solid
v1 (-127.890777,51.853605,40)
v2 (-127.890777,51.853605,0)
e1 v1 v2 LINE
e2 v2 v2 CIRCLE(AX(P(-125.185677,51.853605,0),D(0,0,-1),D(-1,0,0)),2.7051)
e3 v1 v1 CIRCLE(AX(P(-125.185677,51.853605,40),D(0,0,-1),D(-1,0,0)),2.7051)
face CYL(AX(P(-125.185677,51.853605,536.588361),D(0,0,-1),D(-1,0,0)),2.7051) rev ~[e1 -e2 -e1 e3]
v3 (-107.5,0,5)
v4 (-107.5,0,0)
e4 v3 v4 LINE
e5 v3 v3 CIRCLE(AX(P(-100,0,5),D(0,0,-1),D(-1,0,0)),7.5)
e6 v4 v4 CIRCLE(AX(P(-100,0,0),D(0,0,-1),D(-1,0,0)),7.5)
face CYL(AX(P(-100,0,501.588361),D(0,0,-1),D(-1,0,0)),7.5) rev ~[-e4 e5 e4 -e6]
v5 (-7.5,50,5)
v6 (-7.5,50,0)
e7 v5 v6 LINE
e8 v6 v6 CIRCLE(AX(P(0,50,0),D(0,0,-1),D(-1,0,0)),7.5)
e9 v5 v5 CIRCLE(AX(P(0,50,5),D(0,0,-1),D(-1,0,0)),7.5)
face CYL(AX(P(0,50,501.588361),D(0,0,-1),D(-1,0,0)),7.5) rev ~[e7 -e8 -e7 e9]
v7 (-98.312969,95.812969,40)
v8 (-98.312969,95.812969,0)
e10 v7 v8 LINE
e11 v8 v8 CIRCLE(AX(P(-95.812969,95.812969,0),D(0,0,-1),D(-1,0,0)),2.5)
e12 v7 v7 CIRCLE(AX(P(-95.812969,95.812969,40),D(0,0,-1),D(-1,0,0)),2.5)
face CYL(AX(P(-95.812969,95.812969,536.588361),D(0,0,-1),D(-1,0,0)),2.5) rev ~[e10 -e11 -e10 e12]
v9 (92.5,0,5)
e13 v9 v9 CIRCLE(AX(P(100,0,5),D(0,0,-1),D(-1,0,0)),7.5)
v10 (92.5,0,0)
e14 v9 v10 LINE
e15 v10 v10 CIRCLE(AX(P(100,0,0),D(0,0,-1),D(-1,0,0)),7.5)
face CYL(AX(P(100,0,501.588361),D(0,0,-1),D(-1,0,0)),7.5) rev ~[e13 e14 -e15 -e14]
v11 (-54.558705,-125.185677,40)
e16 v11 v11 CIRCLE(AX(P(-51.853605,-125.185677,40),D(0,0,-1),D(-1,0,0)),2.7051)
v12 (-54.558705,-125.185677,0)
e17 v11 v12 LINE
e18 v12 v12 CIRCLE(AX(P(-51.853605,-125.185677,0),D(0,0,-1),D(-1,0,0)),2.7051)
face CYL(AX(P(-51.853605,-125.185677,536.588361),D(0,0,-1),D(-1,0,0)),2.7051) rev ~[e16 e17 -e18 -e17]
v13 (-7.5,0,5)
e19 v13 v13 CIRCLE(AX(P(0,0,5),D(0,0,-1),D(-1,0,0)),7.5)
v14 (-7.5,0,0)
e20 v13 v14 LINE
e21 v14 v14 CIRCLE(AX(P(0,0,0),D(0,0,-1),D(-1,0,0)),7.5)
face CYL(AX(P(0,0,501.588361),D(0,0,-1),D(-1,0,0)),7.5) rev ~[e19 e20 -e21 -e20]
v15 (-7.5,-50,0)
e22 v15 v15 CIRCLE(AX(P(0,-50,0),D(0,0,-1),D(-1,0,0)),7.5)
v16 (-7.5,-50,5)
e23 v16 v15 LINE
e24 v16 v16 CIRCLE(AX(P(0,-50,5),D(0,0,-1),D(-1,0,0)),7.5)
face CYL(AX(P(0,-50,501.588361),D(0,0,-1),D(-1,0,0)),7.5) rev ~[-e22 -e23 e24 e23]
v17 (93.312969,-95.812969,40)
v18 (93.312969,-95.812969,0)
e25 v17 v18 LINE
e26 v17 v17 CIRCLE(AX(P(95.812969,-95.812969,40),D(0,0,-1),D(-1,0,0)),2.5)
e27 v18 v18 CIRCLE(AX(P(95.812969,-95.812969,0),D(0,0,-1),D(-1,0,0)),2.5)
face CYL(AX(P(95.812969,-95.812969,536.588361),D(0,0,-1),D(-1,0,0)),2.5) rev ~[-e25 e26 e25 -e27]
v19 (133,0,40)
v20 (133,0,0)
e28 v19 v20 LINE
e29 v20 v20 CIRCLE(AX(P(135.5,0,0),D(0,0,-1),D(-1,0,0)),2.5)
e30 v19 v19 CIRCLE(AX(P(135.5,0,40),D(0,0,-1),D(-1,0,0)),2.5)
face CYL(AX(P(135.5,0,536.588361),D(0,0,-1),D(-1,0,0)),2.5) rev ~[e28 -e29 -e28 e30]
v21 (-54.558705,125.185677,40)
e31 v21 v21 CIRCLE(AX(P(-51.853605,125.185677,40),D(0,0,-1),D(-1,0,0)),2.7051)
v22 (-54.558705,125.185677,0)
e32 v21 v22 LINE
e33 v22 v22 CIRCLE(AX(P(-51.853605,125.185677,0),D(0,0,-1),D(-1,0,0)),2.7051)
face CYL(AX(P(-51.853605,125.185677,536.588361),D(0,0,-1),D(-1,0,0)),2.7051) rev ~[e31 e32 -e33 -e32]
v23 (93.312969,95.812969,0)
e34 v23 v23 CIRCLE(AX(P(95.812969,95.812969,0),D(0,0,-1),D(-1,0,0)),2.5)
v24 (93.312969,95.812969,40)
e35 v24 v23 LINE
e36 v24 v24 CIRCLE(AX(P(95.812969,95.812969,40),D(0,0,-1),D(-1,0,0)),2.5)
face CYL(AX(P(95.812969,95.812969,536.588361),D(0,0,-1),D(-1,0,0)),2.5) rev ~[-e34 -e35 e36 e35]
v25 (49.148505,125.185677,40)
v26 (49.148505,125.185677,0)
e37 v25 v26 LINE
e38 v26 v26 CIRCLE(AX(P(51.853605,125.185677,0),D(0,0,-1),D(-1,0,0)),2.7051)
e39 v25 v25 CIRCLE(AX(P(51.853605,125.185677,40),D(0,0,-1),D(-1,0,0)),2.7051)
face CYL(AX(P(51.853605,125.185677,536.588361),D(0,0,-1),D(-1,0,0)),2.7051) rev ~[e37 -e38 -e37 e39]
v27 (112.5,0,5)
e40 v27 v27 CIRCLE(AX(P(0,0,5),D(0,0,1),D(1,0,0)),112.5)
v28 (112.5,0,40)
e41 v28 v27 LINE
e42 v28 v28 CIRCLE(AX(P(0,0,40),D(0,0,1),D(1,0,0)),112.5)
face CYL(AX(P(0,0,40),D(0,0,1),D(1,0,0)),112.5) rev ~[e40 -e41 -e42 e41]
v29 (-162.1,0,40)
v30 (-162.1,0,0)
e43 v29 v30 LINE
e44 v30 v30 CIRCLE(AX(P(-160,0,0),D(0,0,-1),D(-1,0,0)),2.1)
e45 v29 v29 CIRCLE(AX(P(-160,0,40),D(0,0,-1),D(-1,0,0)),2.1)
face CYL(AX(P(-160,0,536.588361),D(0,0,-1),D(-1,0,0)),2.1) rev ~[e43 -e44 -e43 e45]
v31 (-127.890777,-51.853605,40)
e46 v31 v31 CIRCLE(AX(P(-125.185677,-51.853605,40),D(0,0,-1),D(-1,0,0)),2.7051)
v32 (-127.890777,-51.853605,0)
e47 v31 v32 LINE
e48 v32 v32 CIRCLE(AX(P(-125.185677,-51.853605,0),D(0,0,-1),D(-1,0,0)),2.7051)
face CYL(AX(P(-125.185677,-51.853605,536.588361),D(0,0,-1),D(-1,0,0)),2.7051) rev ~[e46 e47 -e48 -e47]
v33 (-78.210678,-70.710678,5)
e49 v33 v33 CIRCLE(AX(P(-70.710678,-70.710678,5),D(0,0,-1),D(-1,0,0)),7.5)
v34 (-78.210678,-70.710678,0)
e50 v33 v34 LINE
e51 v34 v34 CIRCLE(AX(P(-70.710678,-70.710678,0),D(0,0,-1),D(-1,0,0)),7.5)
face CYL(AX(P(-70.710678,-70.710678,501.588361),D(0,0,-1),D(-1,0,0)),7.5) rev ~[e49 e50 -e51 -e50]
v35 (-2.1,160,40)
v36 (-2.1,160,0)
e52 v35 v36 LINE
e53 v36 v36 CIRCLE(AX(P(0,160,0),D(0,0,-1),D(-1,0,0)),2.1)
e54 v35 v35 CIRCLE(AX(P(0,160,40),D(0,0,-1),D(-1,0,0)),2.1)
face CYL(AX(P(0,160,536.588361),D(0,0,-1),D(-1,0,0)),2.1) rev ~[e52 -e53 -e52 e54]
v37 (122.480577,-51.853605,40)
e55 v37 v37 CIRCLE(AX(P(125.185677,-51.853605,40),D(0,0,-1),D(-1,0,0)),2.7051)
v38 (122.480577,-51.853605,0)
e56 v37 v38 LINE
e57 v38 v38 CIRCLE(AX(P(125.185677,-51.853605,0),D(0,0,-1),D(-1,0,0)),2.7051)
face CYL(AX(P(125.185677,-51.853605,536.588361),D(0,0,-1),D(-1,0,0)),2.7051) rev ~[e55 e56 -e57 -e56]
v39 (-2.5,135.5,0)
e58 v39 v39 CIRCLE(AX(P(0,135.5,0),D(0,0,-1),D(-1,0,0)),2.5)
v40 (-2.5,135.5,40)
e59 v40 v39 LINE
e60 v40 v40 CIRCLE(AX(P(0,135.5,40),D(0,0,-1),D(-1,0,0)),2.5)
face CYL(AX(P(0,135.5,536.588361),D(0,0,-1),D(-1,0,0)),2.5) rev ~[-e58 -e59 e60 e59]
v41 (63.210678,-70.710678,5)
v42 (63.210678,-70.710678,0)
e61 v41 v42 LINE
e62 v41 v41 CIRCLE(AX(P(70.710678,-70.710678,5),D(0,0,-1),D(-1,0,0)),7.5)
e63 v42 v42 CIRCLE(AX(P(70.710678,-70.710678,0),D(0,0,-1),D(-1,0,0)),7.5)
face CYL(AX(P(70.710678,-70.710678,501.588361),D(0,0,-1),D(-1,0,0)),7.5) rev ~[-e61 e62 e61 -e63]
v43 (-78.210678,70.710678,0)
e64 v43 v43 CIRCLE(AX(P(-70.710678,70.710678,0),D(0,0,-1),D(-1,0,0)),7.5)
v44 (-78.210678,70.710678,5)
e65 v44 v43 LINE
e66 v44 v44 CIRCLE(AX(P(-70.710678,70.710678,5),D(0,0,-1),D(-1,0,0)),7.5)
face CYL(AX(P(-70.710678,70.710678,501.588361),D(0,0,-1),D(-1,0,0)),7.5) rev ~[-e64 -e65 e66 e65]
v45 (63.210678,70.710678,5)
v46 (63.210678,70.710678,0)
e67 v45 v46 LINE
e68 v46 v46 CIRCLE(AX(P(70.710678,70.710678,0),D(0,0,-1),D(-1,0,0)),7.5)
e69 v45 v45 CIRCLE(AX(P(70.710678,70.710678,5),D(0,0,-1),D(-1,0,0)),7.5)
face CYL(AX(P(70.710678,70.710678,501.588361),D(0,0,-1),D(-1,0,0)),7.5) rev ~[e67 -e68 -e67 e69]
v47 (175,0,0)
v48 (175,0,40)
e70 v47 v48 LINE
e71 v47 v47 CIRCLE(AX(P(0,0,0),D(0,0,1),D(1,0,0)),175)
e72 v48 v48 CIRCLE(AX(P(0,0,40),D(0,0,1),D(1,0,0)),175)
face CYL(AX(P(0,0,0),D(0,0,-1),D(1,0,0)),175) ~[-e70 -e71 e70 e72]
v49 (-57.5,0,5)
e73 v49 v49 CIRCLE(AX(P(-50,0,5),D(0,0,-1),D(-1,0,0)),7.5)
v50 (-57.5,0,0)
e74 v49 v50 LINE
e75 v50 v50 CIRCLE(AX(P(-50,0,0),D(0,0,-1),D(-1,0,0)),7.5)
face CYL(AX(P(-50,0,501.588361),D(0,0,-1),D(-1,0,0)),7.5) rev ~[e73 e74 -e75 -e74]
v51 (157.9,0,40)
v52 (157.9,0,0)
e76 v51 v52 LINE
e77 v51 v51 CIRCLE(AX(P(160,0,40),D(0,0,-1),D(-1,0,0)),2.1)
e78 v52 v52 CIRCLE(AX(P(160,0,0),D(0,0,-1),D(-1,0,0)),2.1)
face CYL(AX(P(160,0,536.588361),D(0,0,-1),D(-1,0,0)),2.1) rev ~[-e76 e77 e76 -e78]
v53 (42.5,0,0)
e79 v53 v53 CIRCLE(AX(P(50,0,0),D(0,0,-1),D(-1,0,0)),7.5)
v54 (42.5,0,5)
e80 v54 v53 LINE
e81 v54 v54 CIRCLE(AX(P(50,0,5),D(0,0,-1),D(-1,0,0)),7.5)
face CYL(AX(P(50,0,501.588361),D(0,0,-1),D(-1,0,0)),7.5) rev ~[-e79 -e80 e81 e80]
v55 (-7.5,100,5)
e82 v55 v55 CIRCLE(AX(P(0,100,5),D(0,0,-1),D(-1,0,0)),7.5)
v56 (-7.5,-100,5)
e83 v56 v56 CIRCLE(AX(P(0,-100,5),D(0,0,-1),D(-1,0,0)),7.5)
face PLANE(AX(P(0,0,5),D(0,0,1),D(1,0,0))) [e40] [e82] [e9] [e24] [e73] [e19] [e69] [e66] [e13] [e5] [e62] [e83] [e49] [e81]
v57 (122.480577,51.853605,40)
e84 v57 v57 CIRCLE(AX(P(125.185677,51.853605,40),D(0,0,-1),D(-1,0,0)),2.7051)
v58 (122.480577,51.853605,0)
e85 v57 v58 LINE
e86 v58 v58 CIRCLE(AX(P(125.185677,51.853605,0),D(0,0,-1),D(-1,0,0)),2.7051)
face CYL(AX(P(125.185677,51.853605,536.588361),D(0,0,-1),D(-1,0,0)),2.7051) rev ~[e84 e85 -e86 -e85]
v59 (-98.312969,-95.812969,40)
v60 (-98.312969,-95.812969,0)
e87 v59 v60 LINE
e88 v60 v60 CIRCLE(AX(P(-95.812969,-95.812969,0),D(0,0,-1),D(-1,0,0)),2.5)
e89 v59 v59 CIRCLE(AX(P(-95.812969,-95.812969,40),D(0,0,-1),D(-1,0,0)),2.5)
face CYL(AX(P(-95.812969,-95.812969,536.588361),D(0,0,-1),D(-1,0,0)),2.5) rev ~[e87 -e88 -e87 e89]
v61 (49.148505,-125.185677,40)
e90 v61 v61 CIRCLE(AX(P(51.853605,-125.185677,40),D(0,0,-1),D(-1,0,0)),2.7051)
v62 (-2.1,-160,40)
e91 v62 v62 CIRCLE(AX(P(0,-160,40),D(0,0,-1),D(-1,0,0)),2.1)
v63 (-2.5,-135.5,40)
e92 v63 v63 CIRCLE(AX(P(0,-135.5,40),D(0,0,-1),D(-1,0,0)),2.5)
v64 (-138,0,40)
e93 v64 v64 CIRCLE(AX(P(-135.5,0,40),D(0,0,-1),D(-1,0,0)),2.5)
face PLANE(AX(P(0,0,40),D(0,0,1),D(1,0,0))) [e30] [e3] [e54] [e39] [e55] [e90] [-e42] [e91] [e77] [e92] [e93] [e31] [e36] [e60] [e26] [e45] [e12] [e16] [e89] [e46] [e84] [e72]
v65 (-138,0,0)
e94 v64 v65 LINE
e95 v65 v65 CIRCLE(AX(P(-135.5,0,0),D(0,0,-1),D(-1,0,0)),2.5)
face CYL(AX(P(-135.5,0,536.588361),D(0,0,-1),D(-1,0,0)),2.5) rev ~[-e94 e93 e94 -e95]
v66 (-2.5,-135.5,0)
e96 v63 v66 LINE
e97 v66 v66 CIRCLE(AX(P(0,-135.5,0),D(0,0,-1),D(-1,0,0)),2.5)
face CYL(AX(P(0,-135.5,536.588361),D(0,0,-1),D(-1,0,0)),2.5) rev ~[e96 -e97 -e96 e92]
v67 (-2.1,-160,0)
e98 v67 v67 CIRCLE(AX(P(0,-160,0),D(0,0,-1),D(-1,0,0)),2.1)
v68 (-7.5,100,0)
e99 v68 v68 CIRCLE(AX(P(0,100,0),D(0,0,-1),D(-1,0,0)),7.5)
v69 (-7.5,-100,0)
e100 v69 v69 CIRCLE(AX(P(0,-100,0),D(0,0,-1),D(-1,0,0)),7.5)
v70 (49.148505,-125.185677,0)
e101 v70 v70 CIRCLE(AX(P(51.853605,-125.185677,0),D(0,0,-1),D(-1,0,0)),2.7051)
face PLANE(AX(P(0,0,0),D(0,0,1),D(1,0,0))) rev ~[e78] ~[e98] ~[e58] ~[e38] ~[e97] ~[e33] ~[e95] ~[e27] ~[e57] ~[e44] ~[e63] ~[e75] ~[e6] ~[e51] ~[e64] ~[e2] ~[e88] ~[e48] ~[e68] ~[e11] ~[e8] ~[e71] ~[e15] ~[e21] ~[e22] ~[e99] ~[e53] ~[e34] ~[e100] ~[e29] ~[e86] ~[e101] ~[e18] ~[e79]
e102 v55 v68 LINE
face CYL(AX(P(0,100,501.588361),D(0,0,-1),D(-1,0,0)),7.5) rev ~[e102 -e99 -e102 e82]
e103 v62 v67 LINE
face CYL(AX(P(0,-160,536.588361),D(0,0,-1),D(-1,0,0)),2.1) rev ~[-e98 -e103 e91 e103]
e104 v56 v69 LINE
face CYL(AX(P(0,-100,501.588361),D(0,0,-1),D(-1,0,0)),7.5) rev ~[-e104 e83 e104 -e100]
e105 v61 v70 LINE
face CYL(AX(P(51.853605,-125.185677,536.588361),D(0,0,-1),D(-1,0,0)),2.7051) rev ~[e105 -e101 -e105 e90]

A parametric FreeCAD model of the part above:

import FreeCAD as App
import Part
import Sketcher
from FreeCAD import Vector
Q = App.Units.Quantity

doc = App.newDocument("Part")
body = doc.addObject("PartDesign::Body", "Body")

# Sketch on XY plane
sketch1 = doc.addObject("Sketcher::SketchObject", "Sketch")
body.addObject(sketch1)
sketch1.AttachmentSupport = (doc.XY_Plane, [""])
sketch1.MapMode = "FlatFace"
sketch1.addGeometry(Part.Circle(Vector(0, 0, 0), Vector(0, 0, 1), 175), False)
sketch1.addConstraint([
    Sketcher.Constraint("Coincident", 0, 3, -1, 1),
    Sketcher.Constraint("Diameter", 0, Q("350 mm")),
])
pad1 = doc.addObject("PartDesign::Pad", "Pad")
body.addObject(pad1)
pad1.Profile = sketch1
pad1.Length = 40

# Sketch on XY plane
sketch2 = doc.addObject("Sketcher::SketchObject", "Sketch001")
body.addObject(sketch2)
sketch2.AttachmentSupport = (doc.XY_Plane, [""])
sketch2.MapMode = "FlatFace"
sketch2.AttachmentOffset = App.Placement(Vector(0, 0, 40), App.Rotation())
sketch2.addGeometry(Part.Circle(Vector(0, 0, 0), Vector(0, 0, 1), 112.5), False)
sketch2.addConstraint([
    Sketcher.Constraint("Coincident", 0, 3, -1, 1),
    Sketcher.Constraint("Diameter", 0, Q("225 mm")),
])
pocket1 = doc.addObject("PartDesign::Pocket", "Pocket")
body.addObject(pocket1)
pocket1.Profile = sketch2
pocket1.Length = 35

# Sketch on XY plane
sketch3 = doc.addObject("Sketcher::SketchObject", "Sketch002")
body.addObject(sketch3)
sketch3.AttachmentSupport = (doc.XY_Plane, [""])
sketch3.MapMode = "FlatFace"
sketch3.AttachmentOffset = App.Placement(Vector(0, 0, 5), App.Rotation())
sketch3.addGeometry([
    Part.Circle(Vector(0, 100, 0), Vector(0, 0, 1), 7.5),  # 0
    Part.Circle(Vector(0, 50, 0), Vector(0, 0, 1), 7.5),  # 1
    Part.Circle(Vector(70.710678, 70.710678, 0), Vector(0, 0, 1), 7.5),  # 2
    Part.Circle(Vector(100, 0, 0), Vector(0, 0, 1), 7.5),  # 3
    Part.Circle(Vector(70.710678, -70.710678, 0), Vector(0, 0, 1), 7.5),  # 4
    Part.Circle(Vector(0, -100, 0), Vector(0, 0, 1), 7.5),  # 5
    Part.Circle(Vector(-70.710678, -70.710678, 0), Vector(0, 0, 1), 7.5),  # 6
    Part.Circle(Vector(-100, 0, 0), Vector(0, 0, 1), 7.5),  # 7
    Part.Circle(Vector(-70.710678, 70.710678, 0), Vector(0, 0, 1), 7.5),  # 8
    Part.Circle(Vector(0, 0, 0), Vector(0, 0, 1), 7.5),  # 9
    Part.Circle(Vector(50, 0, 0), Vector(0, 0, 1), 7.5),  # 10
    Part.Circle(Vector(0, -50, 0), Vector(0, 0, 1), 7.5),  # 11
    Part.Circle(Vector(-50, 0, 0), Vector(0, 0, 1), 7.5),  # 12
], False)
sketch3.addConstraint([
    Sketcher.Constraint("Coincident", 9, 3, -1, 1),
    Sketcher.Constraint("Equal", 0, 1),
    Sketcher.Constraint("Equal", 1, 2),
    Sketcher.Constraint("Equal", 2, 3),
    Sketcher.Constraint("Equal", 3, 4),
    Sketcher.Constraint("Equal", 4, 5),
    Sketcher.Constraint("Equal", 5, 6),
    Sketcher.Constraint("Equal", 6, 7),
    Sketcher.Constraint("Equal", 7, 8),
    Sketcher.Constraint("Equal", 8, 9),
    Sketcher.Constraint("Equal", 9, 10),
    Sketcher.Constraint("Equal", 10, 11),
    Sketcher.Constraint("Equal", 11, 12),
    Sketcher.Constraint("Symmetric", 0, 3, 5, 3, -1, 1),
    Sketcher.Constraint("Symmetric", 2, 3, 6, 3, -1, 1),
    Sketcher.Constraint("Symmetric", 3, 3, 7, 3, -1, 1),
    Sketcher.Constraint("Symmetric", 4, 3, 8, 3, -1, 1),
    Sketcher.Constraint("Symmetric", 1, 3, 11, 3, -1, 1),
    Sketcher.Constraint("Symmetric", 10, 3, 12, 3, -1, 1),
    Sketcher.Constraint("Symmetric", 4, 3, 6, 3, -2),
    Sketcher.Constraint("PointOnObject", 0, 3, -2),
    Sketcher.Constraint("PointOnObject", 1, 3, -2),
    Sketcher.Constraint("PointOnObject", 3, 3, -1),
    Sketcher.Constraint("PointOnObject", 10, 3, -1),
    Sketcher.Constraint("Diameter", 0, Q("15 mm")),
    Sketcher.Constraint("DistanceY", -1, 1, 0, 3, Q("100 mm")),
    Sketcher.Constraint("DistanceY", -1, 1, 1, 3, Q("50 mm")),
    Sketcher.Constraint("DistanceX", -1, 1, 3, 3, Q("100 mm")),
    Sketcher.Constraint("DistanceX", -1, 1, 10, 3, Q("50 mm")),
    Sketcher.Constraint("DistanceX", -1, 1, 2, 3, Q("70.710678 mm")),
    Sketcher.Constraint("DistanceY", -1, 1, 2, 3, Q("70.710678 mm")),
])
doc.recompute()
hole = doc.addObject("PartDesign::Hole", "Hole")
body.addObject(hole)
hole.Profile = sketch3
hole.ThreadType = "None"
hole.Diameter = 15
hole.DepthType = "ThroughAll"

# Sketch on XY plane
sketch4 = doc.addObject("Sketcher::SketchObject", "Sketch003")
body.addObject(sketch4)
sketch4.AttachmentSupport = (doc.XY_Plane, [""])
sketch4.MapMode = "FlatFace"
sketch4.AttachmentOffset = App.Placement(Vector(0, 0, 40), App.Rotation())
sketch4.addGeometry([
    Part.Circle(Vector(0, 135.5, 0), Vector(0, 0, 1), 2.5),  # 0
    Part.Circle(Vector(95.812969, 95.812969, 0), Vector(0, 0, 1), 2.5),  # 1
    Part.Circle(Vector(135.5, 0, 0), Vector(0, 0, 1), 2.5),  # 2
    Part.Circle(Vector(95.812969, -95.812969, 0), Vector(0, 0, 1), 2.5),  # 3
    Part.Circle(Vector(0, -135.5, 0), Vector(0, 0, 1), 2.5),  # 4
    Part.Circle(Vector(-95.812969, -95.812969, 0), Vector(0, 0, 1), 2.5),  # 5
    Part.Circle(Vector(-135.5, 0, 0), Vector(0, 0, 1), 2.5),  # 6
    Part.Circle(Vector(-95.812969, 95.812969, 0), Vector(0, 0, 1), 2.5),  # 7
    Part.Circle(Vector(0, 0, 0), Vector(0, 0, 1), 2.5),  # 8
], False)
sketch4.addConstraint([
    Sketcher.Constraint("Coincident", 8, 3, -1, 1),
    Sketcher.Constraint("Equal", 0, 1),
    Sketcher.Constraint("Equal", 1, 2),
    Sketcher.Constraint("Equal", 2, 3),
    Sketcher.Constraint("Equal", 3, 4),
    Sketcher.Constraint("Equal", 4, 5),
    Sketcher.Constraint("Equal", 5, 6),
    Sketcher.Constraint("Equal", 6, 7),
    Sketcher.Constraint("Equal", 7, 8),
    Sketcher.Constraint("Symmetric", 0, 3, 4, 3, -1, 1),
    Sketcher.Constraint("Symmetric", 1, 3, 5, 3, -1, 1),
    Sketcher.Constraint("Symmetric", 2, 3, 6, 3, -1, 1),
    Sketcher.Constraint("Symmetric", 3, 3, 7, 3, -1, 1),
    Sketcher.Constraint("Symmetric", 3, 3, 5, 3, -2),
    Sketcher.Constraint("PointOnObject", 0, 3, -2),
    Sketcher.Constraint("PointOnObject", 2, 3, -1),
    Sketcher.Constraint("Diameter", 0, Q("5 mm")),
    Sketcher.Constraint("DistanceY", 4, 3, 0, 3, Q("271 mm")),
    Sketcher.Constraint("DistanceX", -1, 1, 2, 3, Q("135.5 mm")),
    Sketcher.Constraint("DistanceX", -1, 1, 1, 3, Q("95.812969 mm")),
    Sketcher.Constraint("DistanceY", -1, 1, 1, 3, Q("95.812969 mm")),
])
doc.recompute()
hole2 = doc.addObject("PartDesign::Hole", "Hole001")
body.addObject(hole2)
hole2.Profile = sketch4
hole2.ThreadType = "None"
hole2.Diameter = 5
hole2.DepthType = "ThroughAll"

# Sketch on XY plane
sketch5 = doc.addObject("Sketcher::SketchObject", "Sketch004")
body.addObject(sketch5)
sketch5.AttachmentSupport = (doc.XY_Plane, [""])
sketch5.MapMode = "FlatFace"
sketch5.AttachmentOffset = App.Placement(Vector(0, 0, 40), App.Rotation())
sketch5.addGeometry([
    Part.Circle(Vector(51.853605, 125.185677, 0), Vector(0, 0, 1), 2.7051),  # 0
    Part.Circle(Vector(125.185677, 51.853605, 0), Vector(0, 0, 1), 2.7051),  # 1
    Part.Circle(Vector(125.185677, -51.853605, 0), Vector(0, 0, 1), 2.7051),  # 2
    Part.Circle(Vector(51.853605, -125.185677, 0), Vector(0, 0, 1), 2.7051),  # 3
    Part.Circle(Vector(-51.853605, -125.185677, 0), Vector(0, 0, 1), 2.7051),  # 4
    Part.Circle(Vector(-125.185677, -51.853605, 0), Vector(0, 0, 1), 2.7051),  # 5
    Part.Circle(Vector(-125.185677, 51.853605, 0), Vector(0, 0, 1), 2.7051),  # 6
    Part.Circle(Vector(-51.853605, 125.185677, 0), Vector(0, 0, 1), 2.7051),  # 7
    Part.Circle(Vector(0, 0, 0), Vector(0, 0, 1), 2.7051),  # 8
], False)
sketch5.addConstraint([
    Sketcher.Constraint("Coincident", 8, 3, -1, 1),
    Sketcher.Constraint("Equal", 0, 1),
    Sketcher.Constraint("Equal", 1, 2),
    Sketcher.Constraint("Equal", 2, 3),
    Sketcher.Constraint("Equal", 3, 4),
    Sketcher.Constraint("Equal", 4, 5),
    Sketcher.Constraint("Equal", 5, 6),
    Sketcher.Constraint("Equal", 6, 7),
    Sketcher.Constraint("Equal", 7, 8),
    Sketcher.Constraint("Symmetric", 0, 3, 4, 3, -1, 1),
    Sketcher.Constraint("Symmetric", 1, 3, 5, 3, -1, 1),
    Sketcher.Constraint("Symmetric", 2, 3, 6, 3, -1, 1),
    Sketcher.Constraint("Symmetric", 3, 3, 7, 3, -1, 1),
    Sketcher.Constraint("Symmetric", 3, 3, 4, 3, -2),
    Sketcher.Constraint("Symmetric", 2, 3, 5, 3, -2),
    Sketcher.Constraint("Diameter", 0, Q("5.4102 mm")),
    Sketcher.Constraint("DistanceX", 0, 3, 1, 3, Q("73.332072 mm")),
    Sketcher.Constraint("DistanceY", 1, 3, 0, 3, Q("73.332072 mm")),
    Sketcher.Constraint("DistanceY", 2, 3, 1, 3, Q("103.70721 mm")),
    Sketcher.Constraint("DistanceX", 4, 3, 3, 3, Q("103.70721 mm")),
])
doc.recompute()
hole3 = doc.addObject("PartDesign::Hole", "Hole002")
body.addObject(hole3)
hole3.Profile = sketch5
hole3.ThreadType = "None"
hole3.Diameter = 5.4102
hole3.DepthType = "ThroughAll"

# Sketch on XY plane
sketch6 = doc.addObject("Sketcher::SketchObject", "Sketch005")
body.addObject(sketch6)
sketch6.AttachmentSupport = (doc.XY_Plane, [""])
sketch6.MapMode = "FlatFace"
sketch6.AttachmentOffset = App.Placement(Vector(0, 0, 40), App.Rotation())
sketch6.addGeometry([
    Part.Circle(Vector(0, 160, 0), Vector(0, 0, 1), 2.1),  # 0
    Part.Circle(Vector(160, 0, 0), Vector(0, 0, 1), 2.1),  # 1
    Part.Circle(Vector(0, -160, 0), Vector(0, 0, 1), 2.1),  # 2
    Part.Circle(Vector(-160, 0, 0), Vector(0, 0, 1), 2.1),  # 3
    Part.Circle(Vector(0, 0, 0), Vector(0, 0, 1), 2.1),  # 4
], False)
sketch6.addConstraint([
    Sketcher.Constraint("Coincident", 4, 3, -1, 1),
    Sketcher.Constraint("Equal", 0, 1),
    Sketcher.Constraint("Equal", 1, 2),
    Sketcher.Constraint("Equal", 2, 3),
    Sketcher.Constraint("Equal", 3, 4),
    Sketcher.Constraint("Symmetric", 0, 3, 2, 3, -1, 1),
    Sketcher.Constraint("Symmetric", 1, 3, 3, 3, -1, 1),
    Sketcher.Constraint("PointOnObject", 0, 3, -2),
    Sketcher.Constraint("PointOnObject", 1, 3, -1),
    Sketcher.Constraint("Diameter", 0, Q("4.2 mm")),
    Sketcher.Constraint("DistanceY", -1, 1, 0, 3, Q("160 mm")),
    Sketcher.Constraint("DistanceX", -1, 1, 1, 3, Q("160 mm")),
])
doc.recompute()
hole4 = doc.addObject("PartDesign::Hole", "Hole003")
body.addObject(hole4)
hole4.Profile = sketch6
hole4.ThreadType = "None"
hole4.Diameter = 4.2
hole4.DepthType = "ThroughAll"

doc.recompute()
